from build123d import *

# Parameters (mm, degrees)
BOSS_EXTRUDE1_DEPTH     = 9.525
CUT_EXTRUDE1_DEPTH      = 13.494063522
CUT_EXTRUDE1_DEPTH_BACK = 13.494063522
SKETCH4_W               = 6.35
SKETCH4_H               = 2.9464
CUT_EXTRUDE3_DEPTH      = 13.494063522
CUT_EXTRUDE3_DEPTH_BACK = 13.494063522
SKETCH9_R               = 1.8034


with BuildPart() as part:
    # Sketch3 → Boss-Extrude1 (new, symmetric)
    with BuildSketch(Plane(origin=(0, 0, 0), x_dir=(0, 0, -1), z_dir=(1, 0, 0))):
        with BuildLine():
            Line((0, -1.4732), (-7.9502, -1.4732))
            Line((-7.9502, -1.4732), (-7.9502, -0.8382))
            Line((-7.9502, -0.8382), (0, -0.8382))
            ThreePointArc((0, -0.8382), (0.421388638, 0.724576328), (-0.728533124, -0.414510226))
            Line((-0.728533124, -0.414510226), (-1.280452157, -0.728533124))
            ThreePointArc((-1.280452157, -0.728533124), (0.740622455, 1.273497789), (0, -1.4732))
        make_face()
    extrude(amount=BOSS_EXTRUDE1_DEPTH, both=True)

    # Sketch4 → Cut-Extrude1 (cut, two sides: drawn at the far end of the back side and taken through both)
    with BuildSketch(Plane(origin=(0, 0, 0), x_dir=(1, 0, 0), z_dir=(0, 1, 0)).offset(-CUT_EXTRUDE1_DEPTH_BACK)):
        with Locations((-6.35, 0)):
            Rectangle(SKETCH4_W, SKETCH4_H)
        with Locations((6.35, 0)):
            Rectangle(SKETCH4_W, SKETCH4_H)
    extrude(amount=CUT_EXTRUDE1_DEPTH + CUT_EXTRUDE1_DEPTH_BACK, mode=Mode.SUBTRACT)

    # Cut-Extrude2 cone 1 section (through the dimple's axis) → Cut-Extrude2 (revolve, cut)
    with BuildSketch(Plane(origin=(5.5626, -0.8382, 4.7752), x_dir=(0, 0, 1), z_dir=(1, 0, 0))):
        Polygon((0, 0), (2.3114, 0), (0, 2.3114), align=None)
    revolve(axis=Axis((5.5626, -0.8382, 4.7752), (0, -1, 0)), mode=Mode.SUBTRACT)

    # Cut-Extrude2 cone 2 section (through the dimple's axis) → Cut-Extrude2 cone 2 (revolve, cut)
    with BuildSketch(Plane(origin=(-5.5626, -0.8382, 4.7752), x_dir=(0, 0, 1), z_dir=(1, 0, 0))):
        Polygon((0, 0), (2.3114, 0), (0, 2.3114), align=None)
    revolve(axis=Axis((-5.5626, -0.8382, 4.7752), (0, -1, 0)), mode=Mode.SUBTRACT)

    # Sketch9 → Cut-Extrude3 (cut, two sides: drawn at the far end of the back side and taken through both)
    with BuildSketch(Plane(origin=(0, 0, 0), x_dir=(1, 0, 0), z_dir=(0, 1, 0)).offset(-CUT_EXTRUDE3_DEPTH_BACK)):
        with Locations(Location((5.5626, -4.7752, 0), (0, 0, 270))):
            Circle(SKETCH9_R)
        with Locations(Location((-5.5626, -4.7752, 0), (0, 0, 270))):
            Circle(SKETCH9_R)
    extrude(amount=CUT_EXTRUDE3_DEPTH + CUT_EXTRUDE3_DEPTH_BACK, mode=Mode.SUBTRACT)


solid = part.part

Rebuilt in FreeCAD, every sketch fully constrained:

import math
import FreeCAD as App
import Part
import Sketcher
from FreeCAD import Vector
Q = App.Units.Quantity

doc = App.newDocument("Part")
body = doc.addObject("PartDesign::Body", "Body")

sketch1 = body.newObject("Sketcher::SketchObject", "Sketch")
sketch1.AttachmentSupport = (doc.getObject("YZ_Plane"), [""])
sketch1.MapMode = "FlatFace"
sketch1.addGeometry(Part.LineSegment(Vector(-1.5, 8, 0), Vector(-1.5, 0, 0)), False)
sketch1.addGeometry(Part.ArcOfCircle(Part.Circle(Vector(0, 0, 0), Vector(0, 0, 1), 1.5), math.radians(180), math.radians(480)), False)
sketch1.addGeometry(Part.LineSegment(Vector(-0.7, 1.3, 0), Vector(-0.4, 0.7, 0)), False)
sketch1.addGeometry(Part.ArcOfCircle(Part.Circle(Vector(0, 0, 0), Vector(0, 0, 1), 0.8), math.radians(180), math.radians(480)), False)
sketch1.addGeometry(Part.LineSegment(Vector(-0.8, 0, 0), Vector(-0.8, 8, 0)), False)
sketch1.addGeometry(Part.LineSegment(Vector(-0.8, 8, 0), Vector(-1.5, 8, 0)), False)
sketch1.addConstraint(Sketcher.Constraint("Tangent", 0, 2, 1, 1))
sketch1.addConstraint(Sketcher.Constraint("Coincident", 1, 2, 2, 1))
sketch1.addConstraint(Sketcher.Constraint("Coincident", 2, 2, 3, 2))
sketch1.addConstraint(Sketcher.Constraint("Tangent", 3, 1, 4, 1))
sketch1.addConstraint(Sketcher.Constraint("Coincident", 4, 2, 5, 1))
sketch1.addConstraint(Sketcher.Constraint("Coincident", 5, 2, 0, 1))
sketch1.addConstraint(Sketcher.Constraint("Vertical", 0))
sketch1.addConstraint(Sketcher.Constraint("Vertical", 4))
sketch1.addConstraint(Sketcher.Constraint("Horizontal", 5))
sketch1.addConstraint(Sketcher.Constraint("Coincident", 1, 3, -1, 1))
sketch1.addConstraint(Sketcher.Constraint("Coincident", 3, 3, -1, 1))
sketch1.addConstraint(Sketcher.Constraint("Radius", 1, Q("0.058 in")))
sketch1.addConstraint(Sketcher.Constraint("Radius", 3, Q("0.033 in")))
sketch1.addConstraint(Sketcher.Constraint("DistanceY", 0, 2, 0, 1, Q("0.313 in")))
sketch1.addConstraint(Sketcher.Constraint("DistanceX", 2, 2, -1, 1, 0.41451))
sketch1.addConstraint(Sketcher.Constraint("DistanceY", 2, 2, 1, 2, 0.551919))
pad1 = body.newObject("PartDesign::Pad", "Pad")
pad1.Profile = sketch1
pad1.Length = Q("0.75 in")
pad1.Midplane = True

sketch2 = body.newObject("Sketcher::SketchObject", "Sketch001")
sketch2.AttachmentSupport = (doc.getObject("XZ_Plane"), [""])
sketch2.MapMode = "FlatFace"
sketch2.addGeometry(Part.LineSegment(Vector(-9.5, -1.5, 0), Vector(-9.5, 1.5, 0)), False)
sketch2.addGeometry(Part.LineSegment(Vector(-9.5, 1.5, 0), Vector(-3.2, 1.5, 0)), False)
sketch2.addGeometry(Part.LineSegment(Vector(-3.2, 1.5, 0), Vector(-3.2, -1.5, 0)), False)
sketch2.addGeometry(Part.LineSegment(Vector(-3.2, -1.5, 0), Vector(-9.5, -1.5, 0)), False)
sketch2.addGeometry(Part.LineSegment(Vector(3.2, -1.5, 0), Vector(3.2, 1.5, 0)), False)
sketch2.addGeometry(Part.LineSegment(Vector(3.2, 1.5, 0), Vector(9.5, 1.5, 0)), False)
sketch2.addGeometry(Part.LineSegment(Vector(9.5, 1.5, 0), Vector(9.5, -1.5, 0)), False)
sketch2.addGeometry(Part.LineSegment(Vector(9.5, -1.5, 0), Vector(3.2, -1.5, 0)), False)
sketch2.addConstraint(Sketcher.Constraint("Coincident", 0, 2, 1, 1))
sketch2.addConstraint(Sketcher.Constraint("Coincident", 1, 2, 2, 1))
sketch2.addConstraint(Sketcher.Constraint("Coincident", 2, 2, 3, 1))
sketch2.addConstraint(Sketcher.Constraint("Coincident", 3, 2, 0, 1))
sketch2.addConstraint(Sketcher.Constraint("Coincident", 4, 2, 5, 1))
sketch2.addConstraint(Sketcher.Constraint("Coincident", 5, 2, 6, 1))
sketch2.addConstraint(Sketcher.Constraint("Coincident", 6, 2, 7, 1))
sketch2.addConstraint(Sketcher.Constraint("Coincident", 7, 2, 4, 1))
sketch2.addConstraint(Sketcher.Constraint("Vertical", 0))
sketch2.addConstraint(Sketcher.Constraint("Horizontal", 1))
sketch2.addConstraint(Sketcher.Constraint("Vertical", 2))
sketch2.addConstraint(Sketcher.Constraint("Horizontal", 3))
sketch2.addConstraint(Sketcher.Constraint("Vertical", 4))
sketch2.addConstraint(Sketcher.Constraint("Horizontal", 5))
sketch2.addConstraint(Sketcher.Constraint("Vertical", 6))
sketch2.addConstraint(Sketcher.Constraint("Horizontal", 7))
sketch2.addConstraint(Sketcher.Constraint("Symmetric", 2, 2, 4, 2, -1, 1))
sketch2.addConstraint(Sketcher.Constraint("Symmetric", 0, 2, 6, 2, -1, 1))
sketch2.addConstraint(Sketcher.Constraint("Horizontal", 1, 2, 4, 2))
sketch2.addConstraint(Sketcher.Constraint("DistanceX", 1, 1, 1, 2, Q("0.25 in")))
sketch2.addConstraint(Sketcher.Constraint("DistanceX", 0, 2, 4, 2, Q("0.5 in")))
sketch2.addConstraint(Sketcher.Constraint("DistanceY", 0, 1, 0, 2, Q("0.116 in")))
pocket1 = body.newObject("PartDesign::Pocket", "Pocket")
pocket1.Profile = sketch2
pocket1.Type = "ThroughAll"
pocket1.Midplane = True

sketch3 = body.newObject("Sketcher::SketchObject", "Sketch002")
sketch3.AttachmentSupport = (doc.getObject("YZ_Plane"), [""])
sketch3.MapMode = "FlatFace"
sketch3.AttachmentOffset = App.Placement(Vector(0, 0, 0.219 * 25.4), App.Rotation())
sketch3.addGeometry(Part.LineSegment(Vector(-0.8, 4.8, 0), Vector(-0.8, 7.1, 0)), False)
sketch3.addGeometry(Part.LineSegment(Vector(-0.8, 7.1, 0), Vector(-3.1, 4.8, 0)), False)
sketch3.addGeometry(Part.LineSegment(Vector(-3.1, 4.8, 0), Vector(-0.8, 4.8, 0)), False)
sketch3.addGeometry(Part.LineSegment(Vector(-0.8, 4.8, 0), Vector(-3.1, 4.8, 0)), True)
sketch3.addConstraint(Sketcher.Constraint("Coincident", 0, 2, 1, 1))
sketch3.addConstraint(Sketcher.Constraint("Coincident", 1, 2, 2, 1))
sketch3.addConstraint(Sketcher.Constraint("Coincident", 2, 2, 0, 1))
sketch3.addConstraint(Sketcher.Constraint("Vertical", 0))
sketch3.addConstraint(Sketcher.Constraint("Horizontal", 2))
sketch3.addConstraint(Sketcher.Constraint("Horizontal", 3))
sketch3.addConstraint(Sketcher.Constraint("Coincident", 3, 1, 2, 2))
sketch3.addConstraint(Sketcher.Constraint("Equal", 2, 3))
sketch3.addConstraint(Sketcher.Constraint("Equal", 3, 0))
sketch3.addConstraint(Sketcher.Constraint("DistanceX", 2, 1, 2, 2, Q("0.091 in")))
sketch3.addConstraint(Sketcher.Constraint("DistanceX", 0, 2, -1, 1, Q("0.033 in")))
sketch3.addConstraint(Sketcher.Constraint("DistanceY", -1, 1, 0, 2, Q("0.279 in")))
groove = body.newObject("PartDesign::Groove", "Groove")
groove.Profile = sketch3
groove.ReferenceAxis = (sketch3, ["Axis0"])
groove.Angle = 360

sketch4 = body.newObject("Sketcher::SketchObject", "Sketch003")
sketch4.AttachmentSupport = (doc.getObject("YZ_Plane"), [""])
sketch4.MapMode = "FlatFace"
sketch4.AttachmentOffset = App.Placement(Vector(0, 0, -0.219 * 25.4), App.Rotation())
sketch4.addGeometry(Part.LineSegment(Vector(-0.8, 4.8, 0), Vector(-0.8, 7.1, 0)), False)
sketch4.addGeometry(Part.LineSegment(Vector(-0.8, 7.1, 0), Vector(-3.1, 4.8, 0)), False)
sketch4.addGeometry(Part.LineSegment(Vector(-3.1, 4.8, 0), Vector(-0.8, 4.8, 0)), False)
sketch4.addGeometry(Part.LineSegment(Vector(-0.8, 4.8, 0), Vector(-3.1, 4.8, 0)), True)
sketch4.addConstraint(Sketcher.Constraint("Coincident", 0, 2, 1, 1))
sketch4.addConstraint(Sketcher.Constraint("Coincident", 1, 2, 2, 1))
sketch4.addConstraint(Sketcher.Constraint("Coincident", 2, 2, 0, 1))
sketch4.addConstraint(Sketcher.Constraint("Vertical", 0))
sketch4.addConstraint(Sketcher.Constraint("Horizontal", 2))
sketch4.addConstraint(Sketcher.Constraint("Horizontal", 3))
sketch4.addConstraint(Sketcher.Constraint("Coincident", 3, 1, 2, 2))
sketch4.addConstraint(Sketcher.Constraint("Equal", 2, 3))
sketch4.addConstraint(Sketcher.Constraint("Equal", 3, 0))
sketch4.addConstraint(Sketcher.Constraint("DistanceX", 2, 1, 2, 2, Q("0.091 in")))
sketch4.addConstraint(Sketcher.Constraint("DistanceX", 0, 2, -1, 1, Q("0.033 in")))
sketch4.addConstraint(Sketcher.Constraint("DistanceY", -1, 1, 0, 2, Q("0.279 in")))
groove2 = body.newObject("PartDesign::Groove", "Groove001")
groove2.Profile = sketch4
groove2.ReferenceAxis = (sketch4, ["Axis0"])
groove2.Angle = 360

sketch5 = body.newObject("Sketcher::SketchObject", "Sketch004")
sketch5.AttachmentSupport = (doc.getObject("XZ_Plane"), [""])
sketch5.MapMode = "FlatFace"
sketch5.addGeometry(Part.Circle(Vector(5.6, 4.8, 0), Vector(0, 0, 1), 1.8), False)
sketch5.addGeometry(Part.Circle(Vector(-5.6, 4.8, 0), Vector(0, 0, 1), 1.8), False)
sketch5.addConstraint(Sketcher.Constraint("Equal", 0, 1))
sketch5.addConstraint(Sketcher.Constraint("Symmetric", 0, 3, 1, 3, -2))
sketch5.addConstraint(Sketcher.Constraint("Diameter", 0, Q("0.142 in")))
sketch5.addConstraint(Sketcher.Constraint("DistanceX", -1, 1, 0, 3, Q("0.219 in")))
sketch5.addConstraint(Sketcher.Constraint("DistanceY", -1, 1, 0, 3, Q("0.188 in")))
pocket2 = body.newObject("PartDesign::Pocket", "Pocket001")
pocket2.Profile = sketch5
pocket2.Type = "ThroughAll"
pocket2.Midplane = True

doc.recompute()
